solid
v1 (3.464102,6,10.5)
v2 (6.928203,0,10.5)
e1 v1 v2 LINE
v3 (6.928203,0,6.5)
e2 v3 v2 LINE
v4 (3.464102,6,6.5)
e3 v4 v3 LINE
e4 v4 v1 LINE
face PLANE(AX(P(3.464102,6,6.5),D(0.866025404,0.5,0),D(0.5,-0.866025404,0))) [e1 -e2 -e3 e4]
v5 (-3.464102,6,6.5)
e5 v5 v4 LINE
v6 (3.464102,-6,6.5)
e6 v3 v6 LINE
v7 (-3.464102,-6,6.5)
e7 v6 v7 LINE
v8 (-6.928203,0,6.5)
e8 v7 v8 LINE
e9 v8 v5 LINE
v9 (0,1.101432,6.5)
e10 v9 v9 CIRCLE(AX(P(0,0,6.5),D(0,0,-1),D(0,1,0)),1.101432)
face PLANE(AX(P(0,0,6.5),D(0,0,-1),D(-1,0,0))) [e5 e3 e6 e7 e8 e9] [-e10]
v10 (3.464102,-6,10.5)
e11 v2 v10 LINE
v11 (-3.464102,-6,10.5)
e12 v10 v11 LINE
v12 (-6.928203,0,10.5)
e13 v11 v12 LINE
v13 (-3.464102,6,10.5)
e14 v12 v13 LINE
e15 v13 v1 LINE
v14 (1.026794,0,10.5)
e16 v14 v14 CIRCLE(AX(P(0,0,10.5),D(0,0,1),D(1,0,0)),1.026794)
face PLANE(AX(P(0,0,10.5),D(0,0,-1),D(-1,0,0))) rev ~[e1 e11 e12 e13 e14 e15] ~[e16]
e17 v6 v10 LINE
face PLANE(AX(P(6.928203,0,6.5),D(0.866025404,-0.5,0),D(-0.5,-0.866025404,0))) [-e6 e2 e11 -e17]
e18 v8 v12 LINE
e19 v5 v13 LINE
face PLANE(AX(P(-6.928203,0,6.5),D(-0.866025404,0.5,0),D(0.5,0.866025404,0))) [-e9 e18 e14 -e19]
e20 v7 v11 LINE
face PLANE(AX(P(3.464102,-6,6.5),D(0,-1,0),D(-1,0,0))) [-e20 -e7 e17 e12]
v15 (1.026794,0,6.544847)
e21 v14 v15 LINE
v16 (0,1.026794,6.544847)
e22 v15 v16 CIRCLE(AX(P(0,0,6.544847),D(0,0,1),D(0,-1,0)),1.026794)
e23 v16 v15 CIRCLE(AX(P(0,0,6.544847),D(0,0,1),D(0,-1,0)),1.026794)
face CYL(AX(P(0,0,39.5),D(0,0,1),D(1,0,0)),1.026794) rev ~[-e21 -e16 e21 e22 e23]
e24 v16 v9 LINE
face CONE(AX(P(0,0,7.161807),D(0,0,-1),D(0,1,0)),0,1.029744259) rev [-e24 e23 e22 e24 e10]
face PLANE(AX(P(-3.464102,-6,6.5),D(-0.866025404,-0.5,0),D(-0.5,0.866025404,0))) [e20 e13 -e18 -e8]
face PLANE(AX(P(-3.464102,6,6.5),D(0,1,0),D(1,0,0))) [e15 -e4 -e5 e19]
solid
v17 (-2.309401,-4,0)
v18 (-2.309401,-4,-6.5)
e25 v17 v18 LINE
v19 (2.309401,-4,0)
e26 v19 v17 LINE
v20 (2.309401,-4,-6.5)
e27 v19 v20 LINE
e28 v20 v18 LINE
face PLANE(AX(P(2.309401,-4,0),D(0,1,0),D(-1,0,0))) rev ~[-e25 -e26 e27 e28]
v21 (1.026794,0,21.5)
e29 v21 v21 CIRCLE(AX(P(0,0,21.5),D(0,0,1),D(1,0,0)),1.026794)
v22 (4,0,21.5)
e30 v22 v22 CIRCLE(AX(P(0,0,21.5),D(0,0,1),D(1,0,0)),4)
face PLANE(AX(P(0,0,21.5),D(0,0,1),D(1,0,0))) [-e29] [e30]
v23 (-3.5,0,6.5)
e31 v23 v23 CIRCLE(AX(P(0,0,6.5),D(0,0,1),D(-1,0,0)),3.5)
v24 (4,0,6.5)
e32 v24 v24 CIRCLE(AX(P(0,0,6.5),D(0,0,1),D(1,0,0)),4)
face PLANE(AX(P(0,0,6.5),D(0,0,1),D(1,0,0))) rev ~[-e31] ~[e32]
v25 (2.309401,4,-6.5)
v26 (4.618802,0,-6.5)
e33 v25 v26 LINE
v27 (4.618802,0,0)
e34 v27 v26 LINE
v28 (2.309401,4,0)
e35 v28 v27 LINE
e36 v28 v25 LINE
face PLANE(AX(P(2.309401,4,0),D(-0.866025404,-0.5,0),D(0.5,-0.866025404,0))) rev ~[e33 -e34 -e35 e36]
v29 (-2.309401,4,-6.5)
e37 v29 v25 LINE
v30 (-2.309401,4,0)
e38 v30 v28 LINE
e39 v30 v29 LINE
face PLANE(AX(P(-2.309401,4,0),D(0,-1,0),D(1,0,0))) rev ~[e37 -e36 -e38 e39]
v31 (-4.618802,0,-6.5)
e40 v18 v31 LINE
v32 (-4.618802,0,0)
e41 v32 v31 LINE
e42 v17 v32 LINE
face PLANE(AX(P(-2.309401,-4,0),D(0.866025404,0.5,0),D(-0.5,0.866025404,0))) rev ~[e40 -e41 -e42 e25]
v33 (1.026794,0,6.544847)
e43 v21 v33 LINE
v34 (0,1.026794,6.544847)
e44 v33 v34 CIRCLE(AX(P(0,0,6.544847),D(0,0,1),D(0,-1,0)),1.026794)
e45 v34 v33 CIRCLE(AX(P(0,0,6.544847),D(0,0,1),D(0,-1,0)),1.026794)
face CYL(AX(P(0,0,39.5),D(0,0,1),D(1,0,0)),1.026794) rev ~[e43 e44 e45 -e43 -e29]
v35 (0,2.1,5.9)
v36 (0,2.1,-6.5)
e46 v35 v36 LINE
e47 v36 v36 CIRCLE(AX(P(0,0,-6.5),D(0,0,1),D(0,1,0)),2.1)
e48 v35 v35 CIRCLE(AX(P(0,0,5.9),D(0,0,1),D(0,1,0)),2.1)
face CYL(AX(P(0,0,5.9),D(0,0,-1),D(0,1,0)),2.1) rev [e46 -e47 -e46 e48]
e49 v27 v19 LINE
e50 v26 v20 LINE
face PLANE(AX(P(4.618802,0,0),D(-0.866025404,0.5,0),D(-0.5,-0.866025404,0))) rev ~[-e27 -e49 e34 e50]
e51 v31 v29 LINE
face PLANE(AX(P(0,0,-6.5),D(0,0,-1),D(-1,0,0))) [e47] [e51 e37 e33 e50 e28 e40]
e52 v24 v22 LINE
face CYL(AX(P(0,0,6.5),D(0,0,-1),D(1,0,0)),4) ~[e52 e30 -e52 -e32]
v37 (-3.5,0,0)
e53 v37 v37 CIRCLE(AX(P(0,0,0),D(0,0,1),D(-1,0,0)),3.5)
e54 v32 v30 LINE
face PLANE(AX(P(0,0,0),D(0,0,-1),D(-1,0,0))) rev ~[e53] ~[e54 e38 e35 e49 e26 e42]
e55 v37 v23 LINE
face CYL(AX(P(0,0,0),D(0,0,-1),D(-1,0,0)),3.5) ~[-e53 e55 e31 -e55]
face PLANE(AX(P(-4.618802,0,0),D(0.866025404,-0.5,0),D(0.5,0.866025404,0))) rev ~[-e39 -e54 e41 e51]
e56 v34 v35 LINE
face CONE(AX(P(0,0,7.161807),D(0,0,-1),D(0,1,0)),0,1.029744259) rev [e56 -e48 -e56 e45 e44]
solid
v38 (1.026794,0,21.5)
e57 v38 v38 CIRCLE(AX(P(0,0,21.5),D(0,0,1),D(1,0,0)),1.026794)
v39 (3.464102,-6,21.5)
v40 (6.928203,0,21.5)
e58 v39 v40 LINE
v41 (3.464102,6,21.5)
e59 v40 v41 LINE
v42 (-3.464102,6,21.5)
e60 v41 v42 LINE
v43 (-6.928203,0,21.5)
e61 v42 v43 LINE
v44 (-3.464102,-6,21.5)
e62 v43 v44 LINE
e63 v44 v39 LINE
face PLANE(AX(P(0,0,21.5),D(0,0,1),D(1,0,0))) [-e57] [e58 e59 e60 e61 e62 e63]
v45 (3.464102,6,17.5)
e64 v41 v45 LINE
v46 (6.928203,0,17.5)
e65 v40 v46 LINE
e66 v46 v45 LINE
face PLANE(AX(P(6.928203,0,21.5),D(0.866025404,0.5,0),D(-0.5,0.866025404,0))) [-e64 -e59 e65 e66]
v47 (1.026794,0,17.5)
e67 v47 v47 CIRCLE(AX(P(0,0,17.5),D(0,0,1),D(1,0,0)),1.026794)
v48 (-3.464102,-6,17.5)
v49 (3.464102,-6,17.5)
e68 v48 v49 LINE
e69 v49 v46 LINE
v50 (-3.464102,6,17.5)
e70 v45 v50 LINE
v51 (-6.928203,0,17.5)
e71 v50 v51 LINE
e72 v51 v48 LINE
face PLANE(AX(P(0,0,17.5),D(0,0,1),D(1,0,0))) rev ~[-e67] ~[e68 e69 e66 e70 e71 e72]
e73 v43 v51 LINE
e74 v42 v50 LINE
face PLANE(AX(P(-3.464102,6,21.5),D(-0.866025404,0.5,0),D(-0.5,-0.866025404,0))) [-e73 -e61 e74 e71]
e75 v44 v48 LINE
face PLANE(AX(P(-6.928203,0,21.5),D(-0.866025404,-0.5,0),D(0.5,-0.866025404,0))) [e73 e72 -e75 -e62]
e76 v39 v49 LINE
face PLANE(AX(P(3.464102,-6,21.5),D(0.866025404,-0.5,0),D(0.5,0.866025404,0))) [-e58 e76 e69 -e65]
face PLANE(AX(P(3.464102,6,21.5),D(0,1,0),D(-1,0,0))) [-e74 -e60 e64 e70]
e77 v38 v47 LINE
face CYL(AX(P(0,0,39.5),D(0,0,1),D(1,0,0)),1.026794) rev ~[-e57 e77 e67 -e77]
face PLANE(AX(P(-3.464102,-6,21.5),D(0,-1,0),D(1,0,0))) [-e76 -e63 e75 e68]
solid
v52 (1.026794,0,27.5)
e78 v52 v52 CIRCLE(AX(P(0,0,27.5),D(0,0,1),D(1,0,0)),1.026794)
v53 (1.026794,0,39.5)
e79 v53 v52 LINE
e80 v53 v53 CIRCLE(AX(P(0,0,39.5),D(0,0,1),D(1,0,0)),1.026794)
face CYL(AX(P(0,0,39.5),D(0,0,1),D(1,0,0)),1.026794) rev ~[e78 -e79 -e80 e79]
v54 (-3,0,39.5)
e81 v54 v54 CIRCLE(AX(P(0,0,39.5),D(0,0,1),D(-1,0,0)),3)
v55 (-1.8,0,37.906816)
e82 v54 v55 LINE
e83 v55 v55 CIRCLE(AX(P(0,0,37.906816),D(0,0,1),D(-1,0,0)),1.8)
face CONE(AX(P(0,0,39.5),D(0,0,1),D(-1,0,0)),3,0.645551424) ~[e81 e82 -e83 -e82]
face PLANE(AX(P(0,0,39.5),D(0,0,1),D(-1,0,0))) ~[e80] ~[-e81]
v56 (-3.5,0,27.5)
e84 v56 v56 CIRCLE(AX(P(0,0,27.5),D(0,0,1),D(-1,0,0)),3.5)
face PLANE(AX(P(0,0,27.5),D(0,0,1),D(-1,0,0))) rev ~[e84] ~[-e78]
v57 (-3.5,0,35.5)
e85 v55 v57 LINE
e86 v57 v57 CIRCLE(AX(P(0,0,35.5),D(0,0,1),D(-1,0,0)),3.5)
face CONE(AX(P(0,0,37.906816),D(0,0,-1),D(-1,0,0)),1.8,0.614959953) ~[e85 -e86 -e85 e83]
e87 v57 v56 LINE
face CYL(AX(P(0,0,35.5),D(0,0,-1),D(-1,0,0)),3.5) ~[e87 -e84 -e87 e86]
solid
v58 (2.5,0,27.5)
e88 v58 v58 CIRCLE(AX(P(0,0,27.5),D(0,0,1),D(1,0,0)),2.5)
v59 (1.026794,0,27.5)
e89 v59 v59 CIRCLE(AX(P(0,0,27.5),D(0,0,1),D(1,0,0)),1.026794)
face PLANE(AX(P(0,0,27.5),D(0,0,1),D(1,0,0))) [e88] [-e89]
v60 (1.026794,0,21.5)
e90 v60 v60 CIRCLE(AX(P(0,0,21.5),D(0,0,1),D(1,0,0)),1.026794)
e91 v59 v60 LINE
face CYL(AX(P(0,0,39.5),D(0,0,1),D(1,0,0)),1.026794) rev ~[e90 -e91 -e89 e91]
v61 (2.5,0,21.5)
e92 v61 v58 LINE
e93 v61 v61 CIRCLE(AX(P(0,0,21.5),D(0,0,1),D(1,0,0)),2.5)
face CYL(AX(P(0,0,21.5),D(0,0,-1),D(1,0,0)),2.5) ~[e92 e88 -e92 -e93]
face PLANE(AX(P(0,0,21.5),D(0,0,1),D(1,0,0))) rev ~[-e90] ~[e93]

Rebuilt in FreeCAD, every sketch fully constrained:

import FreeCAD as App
import Part
import Sketcher
from FreeCAD import Vector
Q = App.Units.Quantity


def add_polygon(sketch, points):
    """Adds a closed chain of lines whose ends are joined by coincident constraints."""
    first, n = sketch.GeometryCount, len(points)
    for a, b in zip(points, points[1:] + points[:1]):
        sketch.addGeometry(Part.LineSegment(App.Vector(*a, 0), App.Vector(*b, 0)), False)
    for i in range(n):
        sketch.addConstraint(Sketcher.Constraint("Coincident", first + i, 2, first + (i + 1) % n, 1))

doc = App.newDocument("Part")
body = doc.addObject("PartDesign::Body", "Body")

# Sketch on XY plane
sketch1 = body.newObject("Sketcher::SketchObject", "Sketch")
sketch1.AttachmentSupport = (doc.getObject("XY_Plane"), [""])
sketch1.MapMode = "FlatFace"
sketch1.addGeometry(Part.Circle(Vector(0, 0, 0), Vector(0, 0, 1), 3.5), False)
sketch1.addConstraint([
    Sketcher.Constraint("Coincident", 0, 3, -1, 1),
    Sketcher.Constraint("Diameter", 0, Q("7 mm")),
])
pad1 = body.newObject("PartDesign::Pad", "Pad")
pad1.Profile = sketch1
pad1.Length = 6.5

# Sketch on XY plane
sketch2 = body.newObject("Sketcher::SketchObject", "Sketch001")
sketch2.AttachmentSupport = (doc.getObject("XY_Plane"), [""])
sketch2.MapMode = "FlatFace"
add_polygon(sketch2, [(4.6, 0), (2.3, -4), (-2.3, -4), (-4.6, 0), (-2.3, 4), (2.3, 4)])  # lines 0-5
sketch2.addConstraint([
    Sketcher.Constraint("Horizontal", 1),
    Sketcher.Constraint("Horizontal", 4),
    Sketcher.Constraint("Symmetric", 0, 2, 3, 2, -1, 1),
    Sketcher.Constraint("Symmetric", 2, 2, 5, 2, -1, 1),
    Sketcher.Constraint("PointOnObject", 2, 2, -1),
    Sketcher.Constraint("Parallel", 2, 5),
    Sketcher.Constraint("Vertical", 1, 2, 3, 2),
    Sketcher.Constraint("Angle", 0, Q("-120 deg")),
    Sketcher.Constraint("DistanceY", 0, 2, -1, 1, Q("4 mm")),
    Sketcher.Constraint("DistanceX", -1, 1, 0, 2, Q("2.309401 mm")),
])
pad2 = body.newObject("PartDesign::Pad", "Pad001")
pad2.Profile = sketch2
pad2.Length = 6.5
pad2.Reversed = True

# Sketch on XY plane
sketch3 = body.newObject("Sketcher::SketchObject", "Sketch002")
sketch3.AttachmentSupport = (doc.getObject("XY_Plane"), [""])
sketch3.MapMode = "FlatFace"
sketch3.AttachmentOffset = App.Placement(Vector(0, 0, 6.5), App.Rotation())
sketch3.addGeometry(Part.Circle(Vector(0, 0, 0), Vector(0, 0, 1), 4), False)
sketch3.addConstraint([
    Sketcher.Constraint("Coincident", 0, 3, -1, 1),
    Sketcher.Constraint("Diameter", 0, Q("8 mm")),
])
pad3 = body.newObject("PartDesign::Pad", "Pad002")
pad3.Profile = sketch3
pad3.Length = 15
body2 = doc.addObject("PartDesign::Body", "Body001")

# Sketch on XY plane
sketch4 = body2.newObject("Sketcher::SketchObject", "Sketch003")
sketch4.AttachmentSupport = (doc.getObject("XY_Plane001"), [""])
sketch4.MapMode = "FlatFace"
sketch4.AttachmentOffset = App.Placement(Vector(0, 0, 6.5), App.Rotation())
add_polygon(sketch4, [(3, 6), (7, 0), (3, -6), (-3, -6), (-7, 0), (-3, 6)])  # lines 0-5
sketch4.addConstraint([
    Sketcher.Constraint("Horizontal", 2),
    Sketcher.Constraint("Horizontal", 5),
    Sketcher.Constraint("Symmetric", 0, 2, 3, 2, -1, 1),
    Sketcher.Constraint("Symmetric", 1, 2, 4, 2, -1, 1),
    Sketcher.Constraint("PointOnObject", 0, 2, -1),
    Sketcher.Constraint("Parallel", 0, 3),
    Sketcher.Constraint("Vertical", 2, 2, 4, 2),
    Sketcher.Constraint("Angle", 0, Q("-60 deg")),
    Sketcher.Constraint("DistanceY", 1, 2, -1, 1, Q("6 mm")),
    Sketcher.Constraint("DistanceX", -1, 1, 1, 2, Q("3.464102 mm")),
])
pad4 = body2.newObject("PartDesign::Pad", "Pad003")
pad4.Profile = sketch4
pad4.Length = 4
body3 = doc.addObject("PartDesign::Body", "Body002")

# Sketch on XY plane
sketch5 = body3.newObject("Sketcher::SketchObject", "Sketch004")
sketch5.AttachmentSupport = (doc.getObject("XY_Plane002"), [""])
sketch5.MapMode = "FlatFace"
sketch5.AttachmentOffset = App.Placement(Vector(0, 0, 21.5), App.Rotation())
add_polygon(sketch5, [(3, 6), (-3, 6), (-7, 0), (-3, -6), (3, -6), (7, 0)])  # lines 0-5
sketch5.addConstraint([
    Sketcher.Constraint("Horizontal", 0),
    Sketcher.Constraint("Horizontal", 3),
    Sketcher.Constraint("Symmetric", 0, 2, 3, 2, -1, 1),
    Sketcher.Constraint("Symmetric", 1, 2, 4, 2, -1, 1),
    Sketcher.Constraint("PointOnObject", 1, 2, -1),
    Sketcher.Constraint("Parallel", 2, 5),
    Sketcher.Constraint("Vertical", 0, 2, 2, 2),
    Sketcher.Constraint("Angle", 1, Q("-120 deg")),
    Sketcher.Constraint("DistanceY", -1, 1, 0, 2, Q("6 mm")),
    Sketcher.Constraint("DistanceX", 0, 2, -1, 1, Q("3.464102 mm")),
])
pad5 = body3.newObject("PartDesign::Pad", "Pad004")
pad5.Profile = sketch5
pad5.Length = 4
pad5.Reversed = True
body4 = doc.addObject("PartDesign::Body", "Body003")

# Sketch on XY plane
sketch6 = body4.newObject("Sketcher::SketchObject", "Sketch005")
sketch6.AttachmentSupport = (doc.getObject("XY_Plane003"), [""])
sketch6.MapMode = "FlatFace"
sketch6.AttachmentOffset = App.Placement(Vector(0, 0, 21.5), App.Rotation())
sketch6.addGeometry(Part.Circle(Vector(0, 0, 0), Vector(0, 0, 1), 2.5), False)
sketch6.addConstraint([
    Sketcher.Constraint("Coincident", 0, 3, -1, 1),
    Sketcher.Constraint("Diameter", 0, Q("5 mm")),
])
pad6 = body4.newObject("PartDesign::Pad", "Pad005")
pad6.Profile = sketch6
pad6.Length = 6
body5 = doc.addObject("PartDesign::Body", "Body004")

# Sketch on XZ plane
sketch7 = body5.newObject("Sketcher::SketchObject", "Sketch006")
sketch7.AttachmentSupport = (doc.getObject("XZ_Plane004"), [""])
sketch7.MapMode = "FlatFace"
add_polygon(sketch7, [(0, 27.5), (0, 39.5), (3, 39.5), (1.8, 37.9), (3.5, 35.5), (3.5, 27.5)])  # lines 0-5
sketch7.addConstraint([
    Sketcher.Constraint("Vertical", 0),
    Sketcher.Constraint("Horizontal", 1),
    Sketcher.Constraint("Vertical", 4),
    Sketcher.Constraint("Horizontal", 5),
    Sketcher.Constraint("PointOnObject", 0, 2, -2),
    Sketcher.Constraint("DistanceX", 1, 1, 1, 2, Q("3 mm")),
    Sketcher.Constraint("DistanceY", 0, 1, 0, 2, Q("12 mm")),
    Sketcher.Constraint("DistanceY", 4, 2, 4, 1, Q("8 mm")),
    Sketcher.Constraint("DistanceX", 5, 2, 5, 1, Q("3.5 mm")),
    Sketcher.Constraint("DistanceY", -1, 1, 0, 2, Q("39.5 mm")),
    Sketcher.Constraint("DistanceX", -1, 1, 2, 2, Q("1.8 mm")),
    Sketcher.Constraint("Distance", 2, Q("1.994552 mm")),
])
revolution = body5.newObject("PartDesign::Revolution", "Revolution")
revolution.Profile = sketch7
revolution.ReferenceAxis = (sketch7, ["V_Axis"])
revolution.Angle = 360
body6 = doc.addObject("PartDesign::Body", "Body005")

# Sketch on YZ plane
sketch8 = body6.newObject("Sketcher::SketchObject", "Sketch007")
sketch8.AttachmentSupport = (doc.getObject("YZ_Plane005"), [""])
sketch8.MapMode = "FlatFace"
add_polygon(sketch8, [(0, 7.2), (0, -6.5), (2.1, -6.5), (2.1, 5.9)])  # lines 0-3
sketch8.addConstraint([
    Sketcher.Constraint("Vertical", 0),
    Sketcher.Constraint("Horizontal", 1),
    Sketcher.Constraint("Vertical", 2),
    Sketcher.Constraint("PointOnObject", 0, 2, -2),
    Sketcher.Constraint("Angle", 3, Q("149 deg")),
    Sketcher.Constraint("DistanceX", 1, 1, 1, 2, Q("2.1 mm")),
    Sketcher.Constraint("DistanceY", 2, 1, 2, 2, Q("12.4 mm")),
    Sketcher.Constraint("DistanceY", 0, 2, -1, 1, Q("6.5 mm")),
])
revolution2 = body6.newObject("PartDesign::Revolution", "Revolution001")
revolution2.Profile = sketch8
revolution2.ReferenceAxis = (sketch8, ["V_Axis"])
revolution2.Angle = 360
doc.recompute()

body7 = doc.addObject("PartDesign::Body", "Body006")
body7.BaseFeature = body6
boolean = body.newObject("PartDesign::Boolean", "Boolean")
boolean.Type = "Cut"
boolean.addObjects([body7])
doc.recompute()

boolean2 = body2.newObject("PartDesign::Boolean", "Boolean001")
boolean2.Type = "Cut"
boolean2.addObjects([body6])
body8 = doc.addObject("PartDesign::Body", "Body007")

# Sketch on XY plane
sketch9 = body8.newObject("Sketcher::SketchObject", "Sketch008")
sketch9.AttachmentSupport = (doc.getObject("XY_Plane007"), [""])
sketch9.MapMode = "FlatFace"
sketch9.AttachmentOffset = App.Placement(Vector(0, 0, 39.5), App.Rotation())
sketch9.addGeometry(Part.Circle(Vector(0, 0, 0), Vector(0, 0, 1), 1), False)
sketch9.addConstraint([
    Sketcher.Constraint("Coincident", 0, 3, -1, 1),
    Sketcher.Constraint("Diameter", 0, Q("2.053588 mm")),
])
pad7 = body8.newObject("PartDesign::Pad", "Pad006")
pad7.Profile = sketch9
pad7.Length = 47.904158
pad7.Reversed = True
doc.recompute()

body9 = doc.addObject("PartDesign::Body", "Body008")
body9.BaseFeature = body8
boolean3 = body.newObject("PartDesign::Boolean", "Boolean002")
boolean3.Type = "Cut"
boolean3.addObjects([body9])
doc.recompute()

body10 = doc.addObject("PartDesign::Body", "Body009")
body10.BaseFeature = body8
boolean4 = body2.newObject("PartDesign::Boolean", "Boolean003")
boolean4.Type = "Cut"
boolean4.addObjects([body10])
doc.recompute()

body11 = doc.addObject("PartDesign::Body", "Body010")
body11.BaseFeature = body8
boolean5 = body3.newObject("PartDesign::Boolean", "Boolean004")
boolean5.Type = "Cut"
boolean5.addObjects([body11])
doc.recompute()

body12 = doc.addObject("PartDesign::Body", "Body011")
body12.BaseFeature = body8
boolean6 = body4.newObject("PartDesign::Boolean", "Boolean005")
boolean6.Type = "Cut"
boolean6.addObjects([body12])
doc.recompute()

boolean7 = body5.newObject("PartDesign::Boolean", "Boolean006")
boolean7.Type = "Cut"
boolean7.addObjects([body8])

doc.recompute()
